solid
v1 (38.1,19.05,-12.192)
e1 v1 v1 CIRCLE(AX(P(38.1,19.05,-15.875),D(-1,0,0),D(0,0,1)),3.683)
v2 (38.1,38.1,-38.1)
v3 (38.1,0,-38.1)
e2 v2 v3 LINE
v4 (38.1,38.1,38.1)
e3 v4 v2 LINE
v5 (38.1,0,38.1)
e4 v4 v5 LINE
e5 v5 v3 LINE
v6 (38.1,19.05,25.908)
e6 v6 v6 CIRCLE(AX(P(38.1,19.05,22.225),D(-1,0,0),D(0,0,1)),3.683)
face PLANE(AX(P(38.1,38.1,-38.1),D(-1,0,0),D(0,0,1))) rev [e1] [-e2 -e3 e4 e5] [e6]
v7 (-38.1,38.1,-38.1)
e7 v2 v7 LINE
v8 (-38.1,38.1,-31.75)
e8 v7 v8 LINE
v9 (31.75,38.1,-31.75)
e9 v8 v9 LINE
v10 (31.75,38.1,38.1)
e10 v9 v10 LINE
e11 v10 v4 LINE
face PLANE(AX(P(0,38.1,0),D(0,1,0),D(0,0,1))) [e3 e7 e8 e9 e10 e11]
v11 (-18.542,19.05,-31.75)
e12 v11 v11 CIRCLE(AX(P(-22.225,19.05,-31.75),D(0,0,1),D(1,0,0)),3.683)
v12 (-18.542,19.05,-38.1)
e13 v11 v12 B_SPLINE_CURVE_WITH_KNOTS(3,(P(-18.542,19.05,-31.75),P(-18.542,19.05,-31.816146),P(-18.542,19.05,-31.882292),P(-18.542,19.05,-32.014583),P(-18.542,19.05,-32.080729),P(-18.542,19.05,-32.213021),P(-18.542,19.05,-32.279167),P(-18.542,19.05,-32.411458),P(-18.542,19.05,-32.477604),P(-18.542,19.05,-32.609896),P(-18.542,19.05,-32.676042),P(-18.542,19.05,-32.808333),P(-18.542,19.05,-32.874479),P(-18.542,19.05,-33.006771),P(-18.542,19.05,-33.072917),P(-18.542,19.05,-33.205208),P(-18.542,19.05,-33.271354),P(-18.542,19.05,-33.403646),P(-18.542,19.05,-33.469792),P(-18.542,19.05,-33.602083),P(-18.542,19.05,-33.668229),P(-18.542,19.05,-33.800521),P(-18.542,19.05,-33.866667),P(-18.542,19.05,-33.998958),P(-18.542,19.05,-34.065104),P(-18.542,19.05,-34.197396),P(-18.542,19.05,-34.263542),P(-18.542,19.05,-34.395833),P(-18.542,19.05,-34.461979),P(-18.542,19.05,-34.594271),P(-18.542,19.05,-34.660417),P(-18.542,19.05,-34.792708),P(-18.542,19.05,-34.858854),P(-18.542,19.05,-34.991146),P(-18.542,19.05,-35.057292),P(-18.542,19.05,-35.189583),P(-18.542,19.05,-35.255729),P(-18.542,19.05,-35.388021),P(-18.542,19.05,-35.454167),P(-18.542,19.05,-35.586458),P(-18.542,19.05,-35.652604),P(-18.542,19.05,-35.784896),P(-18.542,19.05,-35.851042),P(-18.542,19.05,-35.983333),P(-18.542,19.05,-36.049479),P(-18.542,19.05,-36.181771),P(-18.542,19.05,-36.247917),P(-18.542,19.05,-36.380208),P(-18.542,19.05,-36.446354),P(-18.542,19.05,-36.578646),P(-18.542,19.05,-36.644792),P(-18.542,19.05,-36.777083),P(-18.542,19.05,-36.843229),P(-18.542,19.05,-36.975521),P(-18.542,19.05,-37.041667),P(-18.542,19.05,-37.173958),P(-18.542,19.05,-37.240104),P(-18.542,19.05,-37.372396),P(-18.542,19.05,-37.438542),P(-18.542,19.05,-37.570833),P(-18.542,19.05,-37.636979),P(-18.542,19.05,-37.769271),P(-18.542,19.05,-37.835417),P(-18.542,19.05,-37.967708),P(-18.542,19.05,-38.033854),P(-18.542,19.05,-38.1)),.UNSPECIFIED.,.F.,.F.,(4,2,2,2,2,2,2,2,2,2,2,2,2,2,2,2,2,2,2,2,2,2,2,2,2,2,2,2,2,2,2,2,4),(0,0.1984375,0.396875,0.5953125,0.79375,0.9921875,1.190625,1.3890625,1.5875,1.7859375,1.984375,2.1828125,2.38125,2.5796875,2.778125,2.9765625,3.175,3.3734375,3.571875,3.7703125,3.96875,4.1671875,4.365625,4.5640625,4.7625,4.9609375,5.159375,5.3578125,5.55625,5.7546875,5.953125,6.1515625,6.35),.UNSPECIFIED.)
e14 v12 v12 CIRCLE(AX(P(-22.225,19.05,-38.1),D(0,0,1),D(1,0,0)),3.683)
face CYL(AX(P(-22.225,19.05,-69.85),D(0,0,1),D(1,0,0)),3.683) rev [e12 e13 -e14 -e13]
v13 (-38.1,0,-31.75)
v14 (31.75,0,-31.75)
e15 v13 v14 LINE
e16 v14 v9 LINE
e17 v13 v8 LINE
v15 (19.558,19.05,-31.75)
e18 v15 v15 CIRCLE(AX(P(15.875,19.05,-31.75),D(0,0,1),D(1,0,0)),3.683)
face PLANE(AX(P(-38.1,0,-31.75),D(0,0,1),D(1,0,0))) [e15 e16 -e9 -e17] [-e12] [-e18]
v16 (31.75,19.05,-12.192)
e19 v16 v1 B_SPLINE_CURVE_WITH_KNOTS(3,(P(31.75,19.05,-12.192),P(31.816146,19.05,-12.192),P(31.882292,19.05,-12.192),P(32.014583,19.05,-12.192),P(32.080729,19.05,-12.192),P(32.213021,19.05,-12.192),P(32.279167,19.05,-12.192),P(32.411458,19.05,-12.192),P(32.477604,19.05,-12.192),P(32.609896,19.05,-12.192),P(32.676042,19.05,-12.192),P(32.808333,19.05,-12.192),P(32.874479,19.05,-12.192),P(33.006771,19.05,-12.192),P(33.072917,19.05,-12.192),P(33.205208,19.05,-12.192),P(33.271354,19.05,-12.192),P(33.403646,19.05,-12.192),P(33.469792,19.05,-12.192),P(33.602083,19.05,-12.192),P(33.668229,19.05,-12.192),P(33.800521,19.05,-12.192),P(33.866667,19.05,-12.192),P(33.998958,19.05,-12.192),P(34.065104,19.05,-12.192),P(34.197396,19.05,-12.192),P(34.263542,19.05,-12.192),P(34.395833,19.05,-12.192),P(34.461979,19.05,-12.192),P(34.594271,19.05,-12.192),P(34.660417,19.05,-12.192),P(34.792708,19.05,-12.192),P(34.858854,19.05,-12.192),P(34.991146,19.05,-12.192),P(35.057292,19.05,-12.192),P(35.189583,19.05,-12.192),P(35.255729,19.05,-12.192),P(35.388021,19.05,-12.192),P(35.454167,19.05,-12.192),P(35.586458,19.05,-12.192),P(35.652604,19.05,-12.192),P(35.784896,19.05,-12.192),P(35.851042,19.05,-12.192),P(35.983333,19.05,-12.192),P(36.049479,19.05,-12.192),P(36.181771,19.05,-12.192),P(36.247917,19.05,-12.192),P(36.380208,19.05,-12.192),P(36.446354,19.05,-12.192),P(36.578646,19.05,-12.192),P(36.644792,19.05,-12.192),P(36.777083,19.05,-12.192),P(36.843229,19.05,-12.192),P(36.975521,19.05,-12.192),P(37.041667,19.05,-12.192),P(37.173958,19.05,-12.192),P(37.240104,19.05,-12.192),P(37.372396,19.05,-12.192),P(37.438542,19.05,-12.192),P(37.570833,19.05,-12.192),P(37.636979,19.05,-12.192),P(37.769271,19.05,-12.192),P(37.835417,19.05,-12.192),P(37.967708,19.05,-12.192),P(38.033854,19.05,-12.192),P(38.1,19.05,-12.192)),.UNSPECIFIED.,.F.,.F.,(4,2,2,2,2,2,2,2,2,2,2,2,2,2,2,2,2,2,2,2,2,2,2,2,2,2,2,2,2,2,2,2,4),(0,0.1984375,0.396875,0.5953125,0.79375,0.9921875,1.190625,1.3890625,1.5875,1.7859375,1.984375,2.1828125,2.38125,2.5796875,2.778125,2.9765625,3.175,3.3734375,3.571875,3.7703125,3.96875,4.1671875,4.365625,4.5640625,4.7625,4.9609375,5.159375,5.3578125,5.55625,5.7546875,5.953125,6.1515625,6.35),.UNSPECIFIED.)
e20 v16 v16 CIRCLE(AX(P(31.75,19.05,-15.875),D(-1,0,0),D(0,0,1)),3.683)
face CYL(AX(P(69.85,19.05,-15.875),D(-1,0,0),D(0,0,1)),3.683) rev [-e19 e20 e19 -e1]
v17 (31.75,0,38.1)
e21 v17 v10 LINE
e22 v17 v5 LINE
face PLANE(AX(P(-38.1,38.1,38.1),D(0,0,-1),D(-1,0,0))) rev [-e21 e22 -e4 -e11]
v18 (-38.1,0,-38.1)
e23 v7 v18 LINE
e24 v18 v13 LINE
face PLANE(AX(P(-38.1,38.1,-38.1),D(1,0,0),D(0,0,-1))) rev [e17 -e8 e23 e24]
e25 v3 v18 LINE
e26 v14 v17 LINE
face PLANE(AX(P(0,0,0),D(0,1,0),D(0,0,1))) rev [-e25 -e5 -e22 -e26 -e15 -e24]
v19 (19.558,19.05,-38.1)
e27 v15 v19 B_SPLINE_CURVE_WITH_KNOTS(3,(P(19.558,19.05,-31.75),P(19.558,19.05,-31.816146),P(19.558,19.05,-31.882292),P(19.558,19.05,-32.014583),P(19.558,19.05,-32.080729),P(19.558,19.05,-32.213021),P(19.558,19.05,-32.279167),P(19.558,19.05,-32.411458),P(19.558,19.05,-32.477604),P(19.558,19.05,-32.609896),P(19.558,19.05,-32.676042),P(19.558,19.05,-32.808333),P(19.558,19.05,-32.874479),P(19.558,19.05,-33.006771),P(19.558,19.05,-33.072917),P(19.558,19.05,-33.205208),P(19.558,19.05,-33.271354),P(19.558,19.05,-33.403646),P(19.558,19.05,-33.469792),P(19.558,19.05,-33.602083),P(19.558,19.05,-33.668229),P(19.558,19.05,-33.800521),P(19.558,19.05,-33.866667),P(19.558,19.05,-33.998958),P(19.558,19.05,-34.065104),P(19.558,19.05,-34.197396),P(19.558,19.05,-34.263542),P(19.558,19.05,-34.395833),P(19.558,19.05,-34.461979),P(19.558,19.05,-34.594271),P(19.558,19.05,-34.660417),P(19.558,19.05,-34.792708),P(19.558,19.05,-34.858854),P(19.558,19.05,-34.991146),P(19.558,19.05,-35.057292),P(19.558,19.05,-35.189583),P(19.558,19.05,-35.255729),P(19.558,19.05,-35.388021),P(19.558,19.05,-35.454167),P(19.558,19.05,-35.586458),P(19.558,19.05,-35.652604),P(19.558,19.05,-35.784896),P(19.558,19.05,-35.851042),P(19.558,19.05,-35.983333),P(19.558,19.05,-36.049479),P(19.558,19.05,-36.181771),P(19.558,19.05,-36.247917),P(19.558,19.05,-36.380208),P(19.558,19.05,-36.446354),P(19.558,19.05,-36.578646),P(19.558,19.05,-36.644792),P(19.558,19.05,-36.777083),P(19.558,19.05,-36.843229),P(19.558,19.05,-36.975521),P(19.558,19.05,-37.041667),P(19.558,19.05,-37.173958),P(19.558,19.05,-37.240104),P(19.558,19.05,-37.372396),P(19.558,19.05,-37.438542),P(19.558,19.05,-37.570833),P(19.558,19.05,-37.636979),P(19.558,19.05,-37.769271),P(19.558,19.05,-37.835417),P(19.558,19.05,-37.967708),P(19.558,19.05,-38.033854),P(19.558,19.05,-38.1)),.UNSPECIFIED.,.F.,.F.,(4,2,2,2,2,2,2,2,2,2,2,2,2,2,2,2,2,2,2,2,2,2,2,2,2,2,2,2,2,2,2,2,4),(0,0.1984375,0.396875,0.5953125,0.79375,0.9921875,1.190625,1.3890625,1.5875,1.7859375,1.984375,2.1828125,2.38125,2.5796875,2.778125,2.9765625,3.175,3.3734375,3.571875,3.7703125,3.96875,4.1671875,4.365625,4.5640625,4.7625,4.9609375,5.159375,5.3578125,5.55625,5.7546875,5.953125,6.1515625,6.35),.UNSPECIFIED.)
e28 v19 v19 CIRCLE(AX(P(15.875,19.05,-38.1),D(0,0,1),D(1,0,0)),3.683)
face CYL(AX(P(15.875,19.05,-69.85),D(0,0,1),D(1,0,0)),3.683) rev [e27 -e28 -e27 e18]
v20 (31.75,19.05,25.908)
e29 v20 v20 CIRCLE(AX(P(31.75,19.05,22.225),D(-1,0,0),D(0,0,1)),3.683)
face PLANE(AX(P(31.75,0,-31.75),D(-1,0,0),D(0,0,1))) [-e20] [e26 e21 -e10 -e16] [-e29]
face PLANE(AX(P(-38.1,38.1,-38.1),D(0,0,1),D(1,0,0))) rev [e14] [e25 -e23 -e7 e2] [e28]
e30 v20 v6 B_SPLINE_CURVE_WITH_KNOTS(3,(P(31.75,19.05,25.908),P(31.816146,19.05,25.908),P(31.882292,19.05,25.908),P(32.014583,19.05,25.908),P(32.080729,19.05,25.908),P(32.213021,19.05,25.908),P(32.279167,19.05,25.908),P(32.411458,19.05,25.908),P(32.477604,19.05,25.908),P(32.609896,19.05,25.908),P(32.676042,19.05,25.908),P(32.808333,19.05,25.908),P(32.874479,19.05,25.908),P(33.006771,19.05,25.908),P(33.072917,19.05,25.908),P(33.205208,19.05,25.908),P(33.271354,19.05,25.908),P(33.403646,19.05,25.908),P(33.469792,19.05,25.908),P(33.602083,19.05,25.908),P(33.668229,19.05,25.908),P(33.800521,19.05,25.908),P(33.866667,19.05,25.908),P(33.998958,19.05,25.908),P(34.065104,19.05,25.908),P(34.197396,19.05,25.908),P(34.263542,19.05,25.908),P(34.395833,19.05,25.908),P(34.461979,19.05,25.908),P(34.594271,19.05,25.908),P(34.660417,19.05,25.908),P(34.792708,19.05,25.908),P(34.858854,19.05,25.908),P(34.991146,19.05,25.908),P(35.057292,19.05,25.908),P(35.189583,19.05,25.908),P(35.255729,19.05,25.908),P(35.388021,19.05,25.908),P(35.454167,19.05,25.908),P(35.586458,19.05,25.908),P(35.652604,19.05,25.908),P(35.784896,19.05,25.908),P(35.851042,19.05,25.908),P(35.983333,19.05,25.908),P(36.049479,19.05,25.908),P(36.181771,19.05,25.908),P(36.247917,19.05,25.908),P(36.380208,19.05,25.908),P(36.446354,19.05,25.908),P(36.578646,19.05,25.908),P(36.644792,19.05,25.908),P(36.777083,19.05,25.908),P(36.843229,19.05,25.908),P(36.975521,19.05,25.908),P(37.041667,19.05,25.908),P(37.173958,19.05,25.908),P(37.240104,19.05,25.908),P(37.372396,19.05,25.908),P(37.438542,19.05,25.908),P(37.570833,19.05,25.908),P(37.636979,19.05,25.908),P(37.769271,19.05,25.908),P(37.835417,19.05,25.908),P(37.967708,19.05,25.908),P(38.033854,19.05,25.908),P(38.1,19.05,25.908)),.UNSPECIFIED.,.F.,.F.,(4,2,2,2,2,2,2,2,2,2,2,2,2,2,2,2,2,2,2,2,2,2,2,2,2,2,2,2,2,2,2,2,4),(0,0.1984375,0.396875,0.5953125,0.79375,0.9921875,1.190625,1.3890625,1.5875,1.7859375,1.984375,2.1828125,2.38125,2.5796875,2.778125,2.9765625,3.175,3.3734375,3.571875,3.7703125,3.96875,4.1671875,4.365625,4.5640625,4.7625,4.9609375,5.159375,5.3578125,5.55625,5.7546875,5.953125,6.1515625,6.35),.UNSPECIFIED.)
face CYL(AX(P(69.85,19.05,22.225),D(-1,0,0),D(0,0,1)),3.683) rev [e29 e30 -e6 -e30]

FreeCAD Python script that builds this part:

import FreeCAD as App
import Part
import Sketcher

V = App.Vector
Q = App.Units.Quantity

doc = App.newDocument("Part")
params = doc.addObject("Spreadsheet::Sheet", "Params")
for row, (alias, value) in enumerate([
    ("sketch1_width", "3 in"),
    ("pad1_length", "1.5 in"),
    ("sketch2_width", "3 in"),
    ("sketch2_width2", "0.25 in"),
    ("sketch3_diameter", "0.29 in"),
    ("pocket2_length", "1.5 in"),
    ("sketch4_diameter", "0.29 in"),
    ("pocket3_length", "1.5 in"),
], start=1):
    params.set(f"A{row}", alias)
    params.set(f"B{row}", "=" + value)
    params.setAlias(f"B{row}", alias)

body = doc.addObject("PartDesign::Body", "Body")

# Sketch on XZ plane
sketch1 = doc.addObject("Sketcher::SketchObject", "Sketch")
body.addObject(sketch1)
sketch1.AttachmentSupport = (doc.XZ_Plane, [""])
sketch1.MapMode = "FlatFace"
sketch1.addGeometry([
    Part.LineSegment(V(-38, -38, 0), V(-38, 38, 0)),
    Part.LineSegment(V(-38, 38, 0), V(38, 38, 0)),
    Part.LineSegment(V(38, 38, 0), V(38, -38, 0)),
    Part.LineSegment(V(38, -38, 0), V(-38, -38, 0)),
], False)
sketch1.addConstraint([
    Sketcher.Constraint("Coincident", 0, 2, 1, 1),
    Sketcher.Constraint("Coincident", 1, 2, 2, 1),
    Sketcher.Constraint("Coincident", 2, 2, 3, 1),
    Sketcher.Constraint("Coincident", 3, 2, 0, 1),
    Sketcher.Constraint("Vertical", 0),
    Sketcher.Constraint("Horizontal", 1),
    Sketcher.Constraint("Vertical", 2),
    Sketcher.Constraint("Horizontal", 3),
    Sketcher.Constraint("Symmetric", 0, 2, 2, 2, -1, 1),
    Sketcher.Constraint("Equal", 3, 0),
    Sketcher.Constraint("DistanceX", 1, 1, 1, 2, Q("3 in")),
])
sketch1.setExpression("Constraints[10]", "Params.sketch1_width")
pad1 = doc.addObject("PartDesign::Pad", "Pad")
body.addObject(pad1)
pad1.Profile = sketch1
pad1.setExpression("Length", "Params.pad1_length")
pad1.Reversed = True

# Sketch on XZ plane
sketch2 = doc.addObject("Sketcher::SketchObject", "Sketch001")
body.addObject(sketch2)
sketch2.AttachmentSupport = (doc.XZ_Plane, [""])
sketch2.MapMode = "FlatFace"
sketch2.AttachmentOffset = App.Placement(V(0, 0, -1.5 * 25.4), App.Rotation())
sketch2.addGeometry([
    Part.LineSegment(V(-51, -51, 0), V(-51, 51, 0)),  # 0
    Part.LineSegment(V(-51, 51, 0), V(51, 51, 0)),  # 1
    Part.LineSegment(V(51, 51, 0), V(51, -51, 0)),  # 2
    Part.LineSegment(V(51, -51, 0), V(-51, -51, 0)),  # 3
    Part.LineSegment(V(-38, -32, 0), V(-38, -38, 0)),  # 4
    Part.LineSegment(V(-38, -38, 0), V(38, -38, 0)),  # 5
    Part.LineSegment(V(38, -38, 0), V(38, 38, 0)),  # 6
    Part.LineSegment(V(38, 38, 0), V(32, 38, 0)),  # 7
    Part.LineSegment(V(32, 38, 0), V(32, -32, 0)),  # 8
    Part.LineSegment(V(32, -32, 0), V(-38, -32, 0)),  # 9
], False)
sketch2.addConstraint([
    Sketcher.Constraint("Coincident", 0, 2, 1, 1),
    Sketcher.Constraint("Coincident", 1, 2, 2, 1),
    Sketcher.Constraint("Coincident", 2, 2, 3, 1),
    Sketcher.Constraint("Coincident", 3, 2, 0, 1),
    Sketcher.Constraint("Coincident", 4, 2, 5, 1),
    Sketcher.Constraint("Coincident", 5, 2, 6, 1),
    Sketcher.Constraint("Coincident", 6, 2, 7, 1),
    Sketcher.Constraint("Coincident", 7, 2, 8, 1),
    Sketcher.Constraint("Coincident", 8, 2, 9, 1),
    Sketcher.Constraint("Coincident", 9, 2, 4, 1),
    Sketcher.Constraint("Vertical", 0),
    Sketcher.Constraint("Horizontal", 1),
    Sketcher.Constraint("Vertical", 2),
    Sketcher.Constraint("Horizontal", 3),
    Sketcher.Constraint("Vertical", 4),
    Sketcher.Constraint("Horizontal", 5),
    Sketcher.Constraint("Vertical", 6),
    Sketcher.Constraint("Horizontal", 7),
    Sketcher.Constraint("Vertical", 8),
    Sketcher.Constraint("Horizontal", 9),
    Sketcher.Constraint("Symmetric", 0, 2, 2, 2, -1, 1),
    Sketcher.Constraint("Symmetric", 4, 2, 6, 2, -1, 1),
    Sketcher.Constraint("Equal", 3, 0),
    Sketcher.Constraint("Equal", 7, 4),
    Sketcher.Constraint("Equal", 5, 6),
    Sketcher.Constraint("DistanceX", 5, 1, 5, 2, Q("3 in")),
    Sketcher.Constraint("DistanceX", 7, 2, 7, 1, Q("0.25 in")),
    Sketcher.Constraint("DistanceX", 1, 1, 1, 2, 101.06),
])
sketch2.setExpression("Constraints[25]", "Params.sketch2_width")
sketch2.setExpression("Constraints[26]", "Params.sketch2_width2")
pocket1 = doc.addObject("PartDesign::Pocket", "Pocket")
body.addObject(pocket1)
pocket1.Profile = sketch2
pocket1.Type = "ThroughAll"
pocket1.Reversed = True

# Sketch on XY plane
sketch3 = doc.addObject("Sketcher::SketchObject", "Sketch002")
body.addObject(sketch3)
sketch3.AttachmentSupport = (doc.XY_Plane, [""])
sketch3.MapMode = "FlatFace"
sketch3.AttachmentOffset = App.Placement(V(0, 0, -1.25 * 25.4), App.Rotation())
sketch3.addGeometry([
    Part.Circle(V(-22.2, 19.1, 0), V(0, 0, 1), 3.7),
    Part.Circle(V(15.9, 19.1, 0), V(0, 0, 1), 3.7),
], False)
sketch3.addConstraint([
    Sketcher.Constraint("Equal", 0, 1),
    Sketcher.Constraint("Horizontal", 0, 3, 1, 3),
    Sketcher.Constraint("Diameter", 0, Q("0.29 in")),
    Sketcher.Constraint("DistanceX", 0, 3, 1, 3, Q("1.5 in")),
    Sketcher.Constraint("DistanceY", -1, 1, 0, 3, Q("0.75 in")),
    Sketcher.Constraint("DistanceX", 0, 3, -1, 1, Q("0.875 in")),
])
sketch3.setExpression("Constraints[2]", "Params.sketch3_diameter")
pocket2 = doc.addObject("PartDesign::Pocket", "Pocket001")
body.addObject(pocket2)
pocket2.Profile = sketch3
pocket2.setExpression("Length", "Params.pocket2_length")

# Sketch on YZ plane
sketch4 = doc.addObject("Sketcher::SketchObject", "Sketch003")
body.addObject(sketch4)
sketch4.AttachmentSupport = (doc.YZ_Plane, [""])
sketch4.MapMode = "FlatFace"
sketch4.AttachmentOffset = App.Placement(V(0, 0, 1.25 * 25.4), App.Rotation())
sketch4.addGeometry([
    Part.Circle(V(19.1, -15.9, 0), V(0, 0, 1), 3.7),
    Part.Circle(V(19.1, 22.2, 0), V(0, 0, 1), 3.7),
], False)
sketch4.addConstraint([
    Sketcher.Constraint("Equal", 0, 1),
    Sketcher.Constraint("Vertical", 0, 3, 1, 3),
    Sketcher.Constraint("Diameter", 0, Q("0.29 in")),
    Sketcher.Constraint("DistanceY", 0, 3, 1, 3, Q("1.5 in")),
    Sketcher.Constraint("DistanceX", -1, 1, 0, 3, Q("0.75 in")),
    Sketcher.Constraint("DistanceY", 0, 3, -1, 1, Q("0.625 in")),
])
sketch4.setExpression("Constraints[2]", "Params.sketch4_diameter")
pocket3 = doc.addObject("PartDesign::Pocket", "Pocket002")
body.addObject(pocket3)
pocket3.Profile = sketch4
pocket3.setExpression("Length", "Params.pocket3_length")
pocket3.Reversed = True

doc.recompute()
